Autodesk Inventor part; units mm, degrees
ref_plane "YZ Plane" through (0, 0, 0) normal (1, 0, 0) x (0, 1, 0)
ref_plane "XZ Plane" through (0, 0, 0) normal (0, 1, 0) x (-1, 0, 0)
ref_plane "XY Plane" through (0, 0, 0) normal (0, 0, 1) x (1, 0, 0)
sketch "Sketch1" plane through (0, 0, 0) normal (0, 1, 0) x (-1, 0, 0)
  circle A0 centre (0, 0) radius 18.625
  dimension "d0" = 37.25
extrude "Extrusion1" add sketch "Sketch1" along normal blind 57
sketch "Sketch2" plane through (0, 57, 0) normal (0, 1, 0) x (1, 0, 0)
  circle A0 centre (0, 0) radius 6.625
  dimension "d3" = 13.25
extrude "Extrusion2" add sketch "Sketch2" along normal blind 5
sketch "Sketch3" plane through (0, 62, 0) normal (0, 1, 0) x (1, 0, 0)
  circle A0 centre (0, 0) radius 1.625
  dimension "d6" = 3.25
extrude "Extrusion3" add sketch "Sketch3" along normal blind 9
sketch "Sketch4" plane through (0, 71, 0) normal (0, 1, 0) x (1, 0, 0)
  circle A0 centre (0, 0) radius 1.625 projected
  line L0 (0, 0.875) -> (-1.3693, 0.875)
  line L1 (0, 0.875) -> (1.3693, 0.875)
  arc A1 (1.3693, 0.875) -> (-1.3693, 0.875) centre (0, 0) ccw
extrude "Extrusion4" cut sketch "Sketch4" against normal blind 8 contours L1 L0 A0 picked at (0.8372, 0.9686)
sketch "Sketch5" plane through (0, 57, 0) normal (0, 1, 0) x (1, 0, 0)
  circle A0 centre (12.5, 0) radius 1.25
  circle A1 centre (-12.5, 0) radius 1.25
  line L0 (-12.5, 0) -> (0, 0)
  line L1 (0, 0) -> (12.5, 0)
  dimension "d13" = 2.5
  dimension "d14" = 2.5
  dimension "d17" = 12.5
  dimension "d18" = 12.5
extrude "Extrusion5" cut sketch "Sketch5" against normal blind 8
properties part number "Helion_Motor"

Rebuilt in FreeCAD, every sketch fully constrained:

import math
import FreeCAD as App
import Part
import Sketcher

doc = App.newDocument("Part")
params = doc.addObject("Spreadsheet::Sheet", "Params")
for row, (alias, value) in enumerate([
    ("sketch1_diameter", "37.25 mm"),
    ("pad1_length", "57 mm"),
    ("sketch2_diameter", "13.25 mm"),
    ("pad2_length", "5 mm"),
    ("sketch3_diameter", "3.25 mm"),
    ("pad3_length", "9 mm"),
    ("pocket1_length", "8 mm"),
    ("sketch5_diameter", "2.5 mm"),
    ("pocket2_length", "8 mm"),
], start=1):
    params.set(f"A{row}", alias)
    params.set(f"B{row}", "=" + value)
    params.setAlias(f"B{row}", alias)

body = doc.addObject("PartDesign::Body", "Body")

sketch1 = doc.addObject("Sketcher::SketchObject", "Sketch")
body.addObject(sketch1)
sketch1.AttachmentSupport = (doc.XZ_Plane, [""])
sketch1.MapMode = "FlatFace"
sketch1.addGeometry(Part.Circle(App.Vector(0, 0, 0), App.Vector(0, 0, 1), 18.625), False)
sketch1.addConstraint([
    Sketcher.Constraint("Coincident", 0, 3, -1, 1),
    Sketcher.Constraint("Diameter", 0, 37.25),
])
sketch1.setExpression("Constraints[1]", "Params.sketch1_diameter")
pad1 = doc.addObject("PartDesign::Pad", "Pad")
body.addObject(pad1)
pad1.Profile = sketch1
pad1.setExpression("Length", "Params.pad1_length")
pad1.Reversed = True

sketch2 = doc.addObject("Sketcher::SketchObject", "Sketch001")
body.addObject(sketch2)
sketch2.AttachmentSupport = (doc.XZ_Plane, [""])
sketch2.MapMode = "FlatFace"
sketch2.AttachmentOffset = App.Placement(App.Vector(0, 0, -57), App.Rotation())
sketch2.addGeometry(Part.Circle(App.Vector(0, 0, 0), App.Vector(0, 0, 1), 6.625), False)
sketch2.addConstraint([
    Sketcher.Constraint("Coincident", 0, 3, -1, 1),
    Sketcher.Constraint("Diameter", 0, 13.25),
])
sketch2.setExpression("Constraints[1]", "Params.sketch2_diameter")
pad2 = doc.addObject("PartDesign::Pad", "Pad001")
body.addObject(pad2)
pad2.Profile = sketch2
pad2.setExpression("Length", "Params.pad2_length")
pad2.Reversed = True

sketch3 = doc.addObject("Sketcher::SketchObject", "Sketch002")
body.addObject(sketch3)
sketch3.AttachmentSupport = (doc.XZ_Plane, [""])
sketch3.MapMode = "FlatFace"
sketch3.AttachmentOffset = App.Placement(App.Vector(0, 0, -62), App.Rotation())
sketch3.addGeometry(Part.Circle(App.Vector(0, 0, 0), App.Vector(0, 0, 1), 1.625), False)
sketch3.addConstraint([
    Sketcher.Constraint("Coincident", 0, 3, -1, 1),
    Sketcher.Constraint("Diameter", 0, 3.25),
])
sketch3.setExpression("Constraints[1]", "Params.sketch3_diameter")
pad3 = doc.addObject("PartDesign::Pad", "Pad002")
body.addObject(pad3)
pad3.Profile = sketch3
pad3.setExpression("Length", "Params.pad3_length")
pad3.Reversed = True

sketch4 = doc.addObject("Sketcher::SketchObject", "Sketch003")
body.addObject(sketch4)
sketch4.AttachmentSupport = (doc.XZ_Plane, [""])
sketch4.MapMode = "FlatFace"
sketch4.AttachmentOffset = App.Placement(App.Vector(0, 0, -71), App.Rotation())
sketch4.addGeometry([
    Part.LineSegment(App.Vector(-1.3693, -0.875, 0), App.Vector(1.3693, -0.875, 0)),
    Part.ArcOfCircle(Part.Circle(App.Vector(0, 0, 0), App.Vector(0, 0, 1), 1.625), math.radians(-147.420908), math.radians(-32.579092)),
], False)
sketch4.addConstraint([
    Sketcher.Constraint("Coincident", 0, 1, 1, 1),
    Sketcher.Constraint("Coincident", 1, 2, 0, 2),
    Sketcher.Constraint("Horizontal", 0),
    Sketcher.Constraint("Coincident", 1, 3, -1, 1),
    Sketcher.Constraint("Radius", 1, 1.625),
    Sketcher.Constraint("DistanceX", 0, 1, 0, 2, 2.7386),
])
pocket1 = doc.addObject("PartDesign::Pocket", "Pocket")
body.addObject(pocket1)
pocket1.Profile = sketch4
pocket1.setExpression("Length", "Params.pocket1_length")
pocket1.Reversed = True

sketch5 = doc.addObject("Sketcher::SketchObject", "Sketch004")
body.addObject(sketch5)
sketch5.AttachmentSupport = (doc.XZ_Plane, [""])
sketch5.MapMode = "FlatFace"
sketch5.AttachmentOffset = App.Placement(App.Vector(0, 0, -57), App.Rotation())
sketch5.addGeometry([
    Part.Circle(App.Vector(12.5, 0, 0), App.Vector(0, 0, 1), 1.25),
    Part.Circle(App.Vector(-12.5, 0, 0), App.Vector(0, 0, 1), 1.25),
], False)
sketch5.addConstraint([
    Sketcher.Constraint("Equal", 0, 1),
    Sketcher.Constraint("Symmetric", 0, 3, 1, 3, -1, 1),
    Sketcher.Constraint("PointOnObject", 0, 3, -1),
    Sketcher.Constraint("Diameter", 0, 2.5),
    Sketcher.Constraint("DistanceX", -1, 1, 0, 3, 12.5),
])
sketch5.setExpression("Constraints[3]", "Params.sketch5_diameter")
pocket2 = doc.addObject("PartDesign::Pocket", "Pocket001")
body.addObject(pocket2)
pocket2.Profile = sketch5
pocket2.setExpression("Length", "Params.pocket2_length")
pocket2.Reversed = True

doc.recompute()
